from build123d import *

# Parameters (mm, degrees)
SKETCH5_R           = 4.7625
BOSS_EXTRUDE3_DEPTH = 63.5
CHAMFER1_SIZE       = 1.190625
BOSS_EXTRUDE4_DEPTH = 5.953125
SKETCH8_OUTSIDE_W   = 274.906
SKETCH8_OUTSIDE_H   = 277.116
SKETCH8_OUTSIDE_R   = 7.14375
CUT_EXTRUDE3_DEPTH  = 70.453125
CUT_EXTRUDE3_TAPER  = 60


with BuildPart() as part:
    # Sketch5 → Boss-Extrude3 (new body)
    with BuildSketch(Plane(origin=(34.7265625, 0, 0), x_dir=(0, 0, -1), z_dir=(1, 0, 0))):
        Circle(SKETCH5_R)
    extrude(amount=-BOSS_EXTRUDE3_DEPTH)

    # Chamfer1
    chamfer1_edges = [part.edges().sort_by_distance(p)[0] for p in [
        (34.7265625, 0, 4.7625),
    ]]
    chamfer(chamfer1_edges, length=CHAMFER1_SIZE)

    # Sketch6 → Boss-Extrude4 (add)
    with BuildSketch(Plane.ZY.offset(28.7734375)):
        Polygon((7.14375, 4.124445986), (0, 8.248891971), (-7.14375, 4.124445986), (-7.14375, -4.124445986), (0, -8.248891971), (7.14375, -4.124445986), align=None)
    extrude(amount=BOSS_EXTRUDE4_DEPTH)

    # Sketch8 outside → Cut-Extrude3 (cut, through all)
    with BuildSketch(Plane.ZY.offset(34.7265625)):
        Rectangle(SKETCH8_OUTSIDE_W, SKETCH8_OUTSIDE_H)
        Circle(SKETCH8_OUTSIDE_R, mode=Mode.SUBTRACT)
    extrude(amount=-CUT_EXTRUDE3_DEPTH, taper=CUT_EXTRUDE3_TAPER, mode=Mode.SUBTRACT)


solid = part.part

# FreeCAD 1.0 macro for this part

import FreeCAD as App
import Part
import Sketcher
from FreeCAD import Vector
Q = App.Units.Quantity


def edges_at(feature, points):
    """Names of the edges that pass closest to the given points."""
    edges = feature.Shape.Edges
    near = lambda p: min(range(len(edges)), key=lambda i: edges[i].distToShape(Part.Vertex(*p))[0])
    return sorted({f"Edge{near(p) + 1}" for p in points})

doc = App.newDocument("Part")
body = doc.addObject("PartDesign::Body", "Body")

sketch1 = doc.addObject("Sketcher::SketchObject", "Sketch")
body.addObject(sketch1)
sketch1.AttachmentSupport = (doc.YZ_Plane, [""])
sketch1.MapMode = "FlatFace"
sketch1.AttachmentOffset = App.Placement(Vector(0, 0, 34.726562), App.Rotation())
sketch1.addGeometry(Part.Circle(Vector(0, 0, 0), Vector(0, 0, 1), 4.7625), False)
sketch1.addConstraint(Sketcher.Constraint("Coincident", 0, 3, -1, 1))
sketch1.addConstraint(Sketcher.Constraint("Diameter", 0, Q("0.375 in")))
pad1 = doc.addObject("PartDesign::Pad", "Pad")
body.addObject(pad1)
pad1.Profile = sketch1
pad1.Length = Q("2.5 in")
pad1.Reversed = True
doc.recompute()

chamfer = doc.addObject("PartDesign::Chamfer", "Chamfer")
body.addObject(chamfer)
chamfer.Base = (pad1, edges_at(pad1, [(34.727, 0, 4.763)]))
chamfer.Size = Q("0.046875 in")

sketch2 = doc.addObject("Sketcher::SketchObject", "Sketch001")
body.addObject(sketch2)
sketch2.AttachmentSupport = (doc.YZ_Plane, [""])
sketch2.MapMode = "FlatFace"
sketch2.AttachmentOffset = App.Placement(Vector(0, 0, -28.773438), App.Rotation())
sketch2.addGeometry(Part.LineSegment(Vector(4.124446, 7.14375, 0), Vector(8.248892, 0, 0)), False)
sketch2.addGeometry(Part.LineSegment(Vector(8.248892, 0, 0), Vector(4.124446, -7.14375, 0)), False)
sketch2.addGeometry(Part.LineSegment(Vector(4.124446, -7.14375, 0), Vector(-4.124446, -7.14375, 0)), False)
sketch2.addGeometry(Part.LineSegment(Vector(-4.124446, -7.14375, 0), Vector(-8.248892, 0, 0)), False)
sketch2.addGeometry(Part.LineSegment(Vector(-8.248892, 0, 0), Vector(-4.124446, 7.14375, 0)), False)
sketch2.addGeometry(Part.LineSegment(Vector(-4.124446, 7.14375, 0), Vector(4.124446, 7.14375, 0)), False)
sketch2.addConstraint(Sketcher.Constraint("Coincident", 0, 2, 1, 1))
sketch2.addConstraint(Sketcher.Constraint("Coincident", 1, 2, 2, 1))
sketch2.addConstraint(Sketcher.Constraint("Coincident", 2, 2, 3, 1))
sketch2.addConstraint(Sketcher.Constraint("Coincident", 3, 2, 4, 1))
sketch2.addConstraint(Sketcher.Constraint("Coincident", 4, 2, 5, 1))
sketch2.addConstraint(Sketcher.Constraint("Coincident", 5, 2, 0, 1))
sketch2.addConstraint(Sketcher.Constraint("Horizontal", 2))
sketch2.addConstraint(Sketcher.Constraint("Horizontal", 5))
sketch2.addConstraint(Sketcher.Constraint("Symmetric", 0, 2, 3, 2, -1, 1))
sketch2.addConstraint(Sketcher.Constraint("Symmetric", 1, 2, 4, 2, -1, 1))
sketch2.addConstraint(Sketcher.Constraint("PointOnObject", 0, 2, -1))
sketch2.addConstraint(Sketcher.Constraint("Parallel", 0, 3))
sketch2.addConstraint(Sketcher.Constraint("Vertical", 2, 2, 4, 2))
sketch2.addConstraint(Sketcher.Constraint("Angle", 0, Q("-60 deg")))
sketch2.addConstraint(Sketcher.Constraint("DistanceY", 1, 2, -1, 1, Q("0.28125 in")))
sketch2.addConstraint(Sketcher.Constraint("DistanceX", 2, 2, 2, 1, 8.248892))
pad2 = doc.addObject("PartDesign::Pad", "Pad001")
body.addObject(pad2)
pad2.Profile = sketch2
pad2.Length = Q("0.234375 in")
pad2.Reversed = True

sketch3 = doc.addObject("Sketcher::SketchObject", "Sketch002")
body.addObject(sketch3)
sketch3.AttachmentSupport = (doc.YZ_Plane, [""])
sketch3.MapMode = "FlatFace"
sketch3.AttachmentOffset = App.Placement(Vector(0, 0, -34.726562), App.Rotation())
sketch3.addGeometry(Part.LineSegment(Vector(138.558, -137.453, 0), Vector(-138.558, -137.453, 0)), False)
sketch3.addGeometry(Part.LineSegment(Vector(-138.558, -137.453, 0), Vector(-138.558, 137.453, 0)), False)
sketch3.addGeometry(Part.LineSegment(Vector(-138.558, 137.453, 0), Vector(138.558, 137.453, 0)), False)
sketch3.addGeometry(Part.LineSegment(Vector(138.558, 137.453, 0), Vector(138.558, -137.453, 0)), False)
sketch3.addGeometry(Part.Circle(Vector(0, 0, 0), Vector(0, 0, 1), 7.14375), False)
sketch3.addConstraint(Sketcher.Constraint("Coincident", 0, 2, 1, 1))
sketch3.addConstraint(Sketcher.Constraint("Coincident", 1, 2, 2, 1))
sketch3.addConstraint(Sketcher.Constraint("Coincident", 2, 2, 3, 1))
sketch3.addConstraint(Sketcher.Constraint("Coincident", 3, 2, 0, 1))
sketch3.addConstraint(Sketcher.Constraint("Horizontal", 0))
sketch3.addConstraint(Sketcher.Constraint("Vertical", 1))
sketch3.addConstraint(Sketcher.Constraint("Horizontal", 2))
sketch3.addConstraint(Sketcher.Constraint("Vertical", 3))
sketch3.addConstraint(Sketcher.Constraint("Coincident", 4, 3, -1, 1))
sketch3.addConstraint(Sketcher.Constraint("Symmetric", 0, 2, 2, 2, -1, 1))
sketch3.addConstraint(Sketcher.Constraint("Diameter", 4, Q("0.5625 in")))
sketch3.addConstraint(Sketcher.Constraint("DistanceX", 0, 2, 0, 1, 277.116))
sketch3.addConstraint(Sketcher.Constraint("DistanceY", 1, 1, 1, 2, 274.906))
pocket1 = doc.addObject("PartDesign::Pocket", "Pocket")
body.addObject(pocket1)
pocket1.Profile = sketch3
pocket1.Length = 70.453125
pocket1.Reversed = True
pocket1.TaperAngle = 60

doc.recompute()
